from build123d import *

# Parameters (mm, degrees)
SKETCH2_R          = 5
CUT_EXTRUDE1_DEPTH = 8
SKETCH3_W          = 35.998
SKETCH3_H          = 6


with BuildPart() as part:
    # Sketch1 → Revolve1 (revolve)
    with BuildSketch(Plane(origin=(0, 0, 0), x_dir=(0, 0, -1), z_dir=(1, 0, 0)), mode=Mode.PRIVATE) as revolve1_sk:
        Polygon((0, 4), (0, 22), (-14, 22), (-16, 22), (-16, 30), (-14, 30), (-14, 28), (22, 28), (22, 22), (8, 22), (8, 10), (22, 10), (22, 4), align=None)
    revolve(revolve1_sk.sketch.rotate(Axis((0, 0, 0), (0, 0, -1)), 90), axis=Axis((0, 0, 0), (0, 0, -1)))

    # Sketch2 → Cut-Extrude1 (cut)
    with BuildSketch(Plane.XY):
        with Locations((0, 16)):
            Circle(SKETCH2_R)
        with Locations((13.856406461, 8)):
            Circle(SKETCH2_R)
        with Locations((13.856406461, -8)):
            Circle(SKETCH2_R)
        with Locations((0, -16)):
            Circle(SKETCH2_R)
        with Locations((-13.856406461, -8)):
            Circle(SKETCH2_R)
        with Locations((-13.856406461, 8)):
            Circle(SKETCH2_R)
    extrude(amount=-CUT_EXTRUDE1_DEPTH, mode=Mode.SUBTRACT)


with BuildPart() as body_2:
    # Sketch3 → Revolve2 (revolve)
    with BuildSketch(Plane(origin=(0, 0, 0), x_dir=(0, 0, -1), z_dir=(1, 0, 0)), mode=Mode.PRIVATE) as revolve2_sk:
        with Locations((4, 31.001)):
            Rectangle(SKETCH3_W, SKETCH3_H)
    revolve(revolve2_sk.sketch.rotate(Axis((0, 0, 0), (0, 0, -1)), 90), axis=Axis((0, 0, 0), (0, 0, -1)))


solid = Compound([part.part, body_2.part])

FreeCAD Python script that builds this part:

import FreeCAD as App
import Part
import Sketcher

doc = App.newDocument("Part")
body = doc.addObject("PartDesign::Body", "Body")

sketch1 = body.newObject("Sketcher::SketchObject", "Sketch")
sketch1.AttachmentSupport = (doc.getObject("YZ_Plane"), [""])
sketch1.MapMode = "FlatFace"
sketch1.addGeometry([
    Part.LineSegment(App.Vector(22, 0, 0), App.Vector(4, 0, 0)),
    Part.LineSegment(App.Vector(4, 0, 0), App.Vector(4, -22, 0)),
    Part.LineSegment(App.Vector(4, -22, 0), App.Vector(10, -22, 0)),
    Part.LineSegment(App.Vector(10, -22, 0), App.Vector(10, -8, 0)),
    Part.LineSegment(App.Vector(10, -8, 0), App.Vector(22, -8, 0)),
    Part.LineSegment(App.Vector(22, -8, 0), App.Vector(22, -22, 0)),
    Part.LineSegment(App.Vector(22, -22, 0), App.Vector(28, -22, 0)),
    Part.LineSegment(App.Vector(28, -22, 0), App.Vector(28, 14, 0)),
    Part.LineSegment(App.Vector(28, 14, 0), App.Vector(30, 14, 0)),
    Part.LineSegment(App.Vector(30, 14, 0), App.Vector(30, 16, 0)),
    Part.LineSegment(App.Vector(30, 16, 0), App.Vector(22, 16, 0)),
    Part.LineSegment(App.Vector(22, 16, 0), App.Vector(22, 0, 0)),
], False)
sketch1.addConstraint([
    Sketcher.Constraint("Coincident", 0, 2, 1, 1),
    Sketcher.Constraint("Coincident", 1, 2, 2, 1),
    Sketcher.Constraint("Coincident", 2, 2, 3, 1),
    Sketcher.Constraint("Coincident", 3, 2, 4, 1),
    Sketcher.Constraint("Coincident", 4, 2, 5, 1),
    Sketcher.Constraint("Coincident", 5, 2, 6, 1),
    Sketcher.Constraint("Coincident", 6, 2, 7, 1),
    Sketcher.Constraint("Coincident", 7, 2, 8, 1),
    Sketcher.Constraint("Coincident", 8, 2, 9, 1),
    Sketcher.Constraint("Coincident", 9, 2, 10, 1),
    Sketcher.Constraint("Coincident", 10, 2, 11, 1),
    Sketcher.Constraint("Coincident", 11, 2, 0, 1),
    Sketcher.Constraint("Horizontal", 0),
    Sketcher.Constraint("Vertical", 1),
    Sketcher.Constraint("Horizontal", 2),
    Sketcher.Constraint("Vertical", 3),
    Sketcher.Constraint("Horizontal", 4),
    Sketcher.Constraint("Vertical", 5),
    Sketcher.Constraint("Horizontal", 6),
    Sketcher.Constraint("Vertical", 7),
    Sketcher.Constraint("Horizontal", 8),
    Sketcher.Constraint("Vertical", 9),
    Sketcher.Constraint("Horizontal", 10),
    Sketcher.Constraint("Vertical", 11),
    Sketcher.Constraint("PointOnObject", 0, 2, -1),
    Sketcher.Constraint("Horizontal", 2, 2, 5, 2),
    Sketcher.Constraint("Vertical", 5, 2, 10, 2),
    Sketcher.Constraint("Equal", 2, 6),
    Sketcher.Constraint("Equal", 8, 9),
    Sketcher.Constraint("DistanceX", 0, 2, 0, 1, 18.0),
    Sketcher.Constraint("DistanceX", 2, 1, 2, 2, 6.0),
    Sketcher.Constraint("DistanceX", 8, 1, 8, 2, 2.0),
    Sketcher.Constraint("DistanceY", 1, 2, 1, 1, 22.0),
    Sketcher.Constraint("DistanceY", 3, 1, 3, 2, 14.0),
    Sketcher.Constraint("DistanceY", 7, 1, 7, 2, 36.0),
    Sketcher.Constraint("DistanceX", -1, 1, 0, 2, 4.0),
])
revolution = body.newObject("PartDesign::Revolution", "Revolution")
revolution.Profile = sketch1
revolution.ReferenceAxis = (sketch1, ["V_Axis"])
revolution.Angle = 360

sketch2 = body.newObject("Sketcher::SketchObject", "Sketch001")
sketch2.AttachmentSupport = (doc.getObject("XY_Plane"), [""])
sketch2.MapMode = "FlatFace"
sketch2.addGeometry([
    Part.Circle(App.Vector(0, 16, 0), App.Vector(0, 0, 1), 5),
    Part.Circle(App.Vector(14, 8, 0), App.Vector(0, 0, 1), 5),
    Part.Circle(App.Vector(14, -8, 0), App.Vector(0, 0, 1), 5),
    Part.Circle(App.Vector(0, -16, 0), App.Vector(0, 0, 1), 5),
    Part.Circle(App.Vector(-14, -8, 0), App.Vector(0, 0, 1), 5),
    Part.Circle(App.Vector(-14, 8, 0), App.Vector(0, 0, 1), 5),
], False)
sketch2.addConstraint([
    Sketcher.Constraint("Equal", 0, 1),
    Sketcher.Constraint("Equal", 1, 2),
    Sketcher.Constraint("Equal", 2, 3),
    Sketcher.Constraint("Equal", 3, 4),
    Sketcher.Constraint("Equal", 4, 5),
    Sketcher.Constraint("Symmetric", 0, 3, 3, 3, -1, 1),
    Sketcher.Constraint("Symmetric", 1, 3, 4, 3, -1, 1),
    Sketcher.Constraint("Symmetric", 2, 3, 5, 3, -1, 1),
    Sketcher.Constraint("Symmetric", 2, 3, 4, 3, -2),
    Sketcher.Constraint("PointOnObject", 0, 3, -2),
    Sketcher.Constraint("Diameter", 0, 10.0),
    Sketcher.Constraint("DistanceY", -1, 1, 0, 3, 16.0),
    Sketcher.Constraint("DistanceY", -1, 1, 1, 3, 8.0),
    Sketcher.Constraint("DistanceX", -1, 1, 1, 3, 13.856406),
])
pocket1 = body.newObject("PartDesign::Pocket", "Pocket")
pocket1.Profile = sketch2
pocket1.Length = 8
body2 = doc.addObject("PartDesign::Body", "Body001")

sketch3 = body2.newObject("Sketcher::SketchObject", "Sketch002")
sketch3.AttachmentSupport = (doc.getObject("YZ_Plane001"), [""])
sketch3.MapMode = "FlatFace"
sketch3.addGeometry([
    Part.LineSegment(App.Vector(34, 14, 0), App.Vector(28, 14, 0)),
    Part.LineSegment(App.Vector(28, 14, 0), App.Vector(28, -22, 0)),
    Part.LineSegment(App.Vector(28, -22, 0), App.Vector(34, -22, 0)),
    Part.LineSegment(App.Vector(34, -22, 0), App.Vector(34, 14, 0)),
], False)
sketch3.addConstraint([
    Sketcher.Constraint("Coincident", 0, 2, 1, 1),
    Sketcher.Constraint("Coincident", 1, 2, 2, 1),
    Sketcher.Constraint("Coincident", 2, 2, 3, 1),
    Sketcher.Constraint("Coincident", 3, 2, 0, 1),
    Sketcher.Constraint("Horizontal", 0),
    Sketcher.Constraint("Vertical", 1),
    Sketcher.Constraint("Horizontal", 2),
    Sketcher.Constraint("Vertical", 3),
    Sketcher.Constraint("DistanceX", 0, 2, 0, 1, 6.0),
    Sketcher.Constraint("DistanceY", 1, 2, 1, 1, 35.998),
    Sketcher.Constraint("DistanceX", -1, 1, 0, 2, 28.001),
    Sketcher.Constraint("DistanceY", -1, 1, 0, 2, 13.999),
])
revolution2 = body2.newObject("PartDesign::Revolution", "Revolution001")
revolution2.Profile = sketch3
revolution2.ReferenceAxis = (sketch3, ["V_Axis"])
revolution2.Angle = 360

doc.recompute()
